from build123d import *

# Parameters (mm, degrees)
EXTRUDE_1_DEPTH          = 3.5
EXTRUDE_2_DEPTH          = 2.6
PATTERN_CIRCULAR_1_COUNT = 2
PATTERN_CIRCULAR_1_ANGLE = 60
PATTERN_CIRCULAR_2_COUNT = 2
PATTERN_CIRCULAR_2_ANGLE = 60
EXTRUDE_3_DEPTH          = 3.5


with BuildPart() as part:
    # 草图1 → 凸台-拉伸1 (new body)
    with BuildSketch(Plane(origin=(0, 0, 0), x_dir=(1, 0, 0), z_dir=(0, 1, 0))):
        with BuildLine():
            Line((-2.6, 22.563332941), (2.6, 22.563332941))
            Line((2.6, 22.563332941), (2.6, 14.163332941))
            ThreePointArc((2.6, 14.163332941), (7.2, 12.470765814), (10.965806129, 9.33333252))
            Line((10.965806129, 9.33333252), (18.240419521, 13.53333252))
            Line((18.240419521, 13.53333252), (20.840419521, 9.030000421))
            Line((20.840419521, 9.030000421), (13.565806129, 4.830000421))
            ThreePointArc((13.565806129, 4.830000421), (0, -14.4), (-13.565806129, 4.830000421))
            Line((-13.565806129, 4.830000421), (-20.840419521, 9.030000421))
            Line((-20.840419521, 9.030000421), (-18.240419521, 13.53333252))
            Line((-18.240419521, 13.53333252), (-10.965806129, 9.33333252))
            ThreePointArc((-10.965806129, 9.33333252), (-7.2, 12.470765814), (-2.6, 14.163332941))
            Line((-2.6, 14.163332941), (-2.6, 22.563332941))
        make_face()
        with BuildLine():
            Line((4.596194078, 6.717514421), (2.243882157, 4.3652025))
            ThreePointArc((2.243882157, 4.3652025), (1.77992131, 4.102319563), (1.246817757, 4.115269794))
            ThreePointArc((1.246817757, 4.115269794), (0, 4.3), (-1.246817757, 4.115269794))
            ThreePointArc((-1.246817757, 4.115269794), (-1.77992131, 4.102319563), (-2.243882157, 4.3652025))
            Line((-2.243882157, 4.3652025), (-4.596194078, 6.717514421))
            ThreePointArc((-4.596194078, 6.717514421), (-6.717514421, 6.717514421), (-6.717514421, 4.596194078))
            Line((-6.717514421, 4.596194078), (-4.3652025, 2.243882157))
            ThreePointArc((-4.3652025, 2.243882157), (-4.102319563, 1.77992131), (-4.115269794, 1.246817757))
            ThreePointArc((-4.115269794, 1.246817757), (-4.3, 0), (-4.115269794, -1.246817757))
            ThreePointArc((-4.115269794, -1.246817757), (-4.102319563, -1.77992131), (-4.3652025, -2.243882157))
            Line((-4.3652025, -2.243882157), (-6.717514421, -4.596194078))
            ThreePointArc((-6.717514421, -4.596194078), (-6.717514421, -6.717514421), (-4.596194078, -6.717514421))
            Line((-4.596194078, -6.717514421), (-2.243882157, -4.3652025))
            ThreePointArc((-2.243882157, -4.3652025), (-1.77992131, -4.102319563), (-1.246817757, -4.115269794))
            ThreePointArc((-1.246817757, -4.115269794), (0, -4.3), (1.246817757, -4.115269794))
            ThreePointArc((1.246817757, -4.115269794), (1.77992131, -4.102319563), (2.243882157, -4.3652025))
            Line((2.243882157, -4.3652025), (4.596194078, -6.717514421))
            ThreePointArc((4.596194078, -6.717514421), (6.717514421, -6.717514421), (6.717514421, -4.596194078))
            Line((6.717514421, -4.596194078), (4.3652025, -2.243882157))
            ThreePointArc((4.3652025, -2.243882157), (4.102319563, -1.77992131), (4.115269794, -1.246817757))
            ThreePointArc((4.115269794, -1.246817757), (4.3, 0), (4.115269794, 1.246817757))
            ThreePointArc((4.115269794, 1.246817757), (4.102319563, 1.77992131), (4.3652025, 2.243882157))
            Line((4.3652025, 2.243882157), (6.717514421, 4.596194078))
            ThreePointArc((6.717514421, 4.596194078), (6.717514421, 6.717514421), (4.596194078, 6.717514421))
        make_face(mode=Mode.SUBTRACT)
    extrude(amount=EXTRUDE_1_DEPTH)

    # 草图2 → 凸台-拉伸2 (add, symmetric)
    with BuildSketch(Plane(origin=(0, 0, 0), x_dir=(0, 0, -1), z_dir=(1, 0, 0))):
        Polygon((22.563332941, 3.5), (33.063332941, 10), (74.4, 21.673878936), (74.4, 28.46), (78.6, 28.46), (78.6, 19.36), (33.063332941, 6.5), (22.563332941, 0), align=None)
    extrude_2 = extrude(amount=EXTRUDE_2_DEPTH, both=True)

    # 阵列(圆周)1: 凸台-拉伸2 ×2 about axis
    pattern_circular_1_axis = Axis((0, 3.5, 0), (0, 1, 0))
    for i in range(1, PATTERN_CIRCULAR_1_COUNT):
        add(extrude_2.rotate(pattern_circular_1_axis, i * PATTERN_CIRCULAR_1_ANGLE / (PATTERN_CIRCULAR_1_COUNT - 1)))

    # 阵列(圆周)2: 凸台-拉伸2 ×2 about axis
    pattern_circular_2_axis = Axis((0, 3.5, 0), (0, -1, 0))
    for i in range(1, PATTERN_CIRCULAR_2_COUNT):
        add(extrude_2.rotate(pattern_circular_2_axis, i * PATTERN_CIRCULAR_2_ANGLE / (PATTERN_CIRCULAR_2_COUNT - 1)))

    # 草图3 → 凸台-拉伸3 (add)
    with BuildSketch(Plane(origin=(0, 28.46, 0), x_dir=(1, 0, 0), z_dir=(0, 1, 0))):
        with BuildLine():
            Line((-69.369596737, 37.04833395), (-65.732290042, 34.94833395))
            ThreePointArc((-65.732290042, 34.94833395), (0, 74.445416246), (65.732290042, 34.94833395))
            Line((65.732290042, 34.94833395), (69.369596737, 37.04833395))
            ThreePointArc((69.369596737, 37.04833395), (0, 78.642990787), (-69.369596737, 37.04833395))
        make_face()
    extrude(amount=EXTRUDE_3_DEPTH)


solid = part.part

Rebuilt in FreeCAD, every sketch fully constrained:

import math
import FreeCAD as App
import Part
import Sketcher
Q = App.Units.Quantity


def add_polygon(sketch, points):
    """Adds a closed chain of lines whose ends are joined by coincident constraints."""
    first, n = sketch.GeometryCount, len(points)
    for a, b in zip(points, points[1:] + points[:1]):
        sketch.addGeometry(Part.LineSegment(App.Vector(*a, 0), App.Vector(*b, 0)), False)
    for i in range(n):
        sketch.addConstraint(Sketcher.Constraint("Coincident", first + i, 2, first + (i + 1) % n, 1))

doc = App.newDocument("Part")
body = doc.addObject("PartDesign::Body", "Body")

# Sketch on XZ plane
sketch1 = body.newObject("Sketcher::SketchObject", "Sketch")
sketch1.AttachmentSupport = (doc.getObject("XZ_Plane"), [""])
sketch1.MapMode = "FlatFace"
sketch1.addGeometry(Part.LineSegment(App.Vector(2.6, -22.6, 0), App.Vector(-2.6, -22.6, 0)), False)
sketch1.addGeometry(Part.LineSegment(App.Vector(-2.6, -22.6, 0), App.Vector(-2.6, -14.2, 0)), False)
sketch1.addGeometry(Part.ArcOfCircle(Part.Circle(App.Vector(0, 0, 0), App.Vector(0, 0, 1), 14.4), math.radians(-140), math.radians(-100)), False)
sketch1.addGeometry(Part.LineSegment(App.Vector(-11, -9.3, 0), App.Vector(-18.2, -13.5, 0)), False)
sketch1.addGeometry(Part.LineSegment(App.Vector(-18.2, -13.5, 0), App.Vector(-20.8, -9, 0)), False)
sketch1.addGeometry(Part.LineSegment(App.Vector(-20.8, -9, 0), App.Vector(-13.6, -4.8, 0)), False)
sketch1.addGeometry(Part.ArcOfCircle(Part.Circle(App.Vector(0, 0, 0), App.Vector(0, 0, 1), 14.4), math.radians(-20), math.radians(200)), False)
sketch1.addGeometry(Part.LineSegment(App.Vector(13.6, -4.8, 0), App.Vector(20.8, -9, 0)), False)
sketch1.addGeometry(Part.LineSegment(App.Vector(20.8, -9, 0), App.Vector(18.2, -13.5, 0)), False)
sketch1.addGeometry(Part.LineSegment(App.Vector(18.2, -13.5, 0), App.Vector(11, -9.3, 0)), False)
sketch1.addGeometry(Part.ArcOfCircle(Part.Circle(App.Vector(0, 0, 0), App.Vector(0, 0, 1), 14.4), math.radians(-80), math.radians(-40)), False)
sketch1.addGeometry(Part.LineSegment(App.Vector(2.6, -14.2, 0), App.Vector(2.6, -22.6, 0)), False)
sketch1.addGeometry(Part.ArcOfCircle(Part.Circle(App.Vector(5.7, -5.7, 0), App.Vector(0, 0, 1), 1.5), math.radians(-135), math.radians(45)), False)
sketch1.addGeometry(Part.LineSegment(App.Vector(6.7, -4.6, 0), App.Vector(4.4, -2.2, 0)), False)
sketch1.addGeometry(Part.ArcOfCircle(Part.Circle(App.Vector(5.1, -1.5, 0), App.Vector(0, 0, 1), 1), math.radians(163), math.radians(225)), False)
sketch1.addGeometry(Part.ArcOfCircle(Part.Circle(App.Vector(0, 0, 0), App.Vector(0, 0, 1), 4.3), math.radians(-17), math.radians(17)), False)
sketch1.addGeometry(Part.ArcOfCircle(Part.Circle(App.Vector(5.1, 1.5, 0), App.Vector(0, 0, 1), 1), math.radians(135), math.radians(197)), False)
sketch1.addGeometry(Part.LineSegment(App.Vector(4.4, 2.2, 0), App.Vector(6.7, 4.6, 0)), False)
sketch1.addGeometry(Part.ArcOfCircle(Part.Circle(App.Vector(5.7, 5.7, 0), App.Vector(0, 0, 1), 1.5), math.radians(-45), math.radians(135)), False)
sketch1.addGeometry(Part.LineSegment(App.Vector(4.6, 6.7, 0), App.Vector(2.2, 4.4, 0)), False)
sketch1.addGeometry(Part.ArcOfCircle(Part.Circle(App.Vector(1.5, 5.1, 0), App.Vector(0, 0, 1), 1), math.radians(-107), math.radians(-45)), False)
sketch1.addGeometry(Part.ArcOfCircle(Part.Circle(App.Vector(0, 0, 0), App.Vector(0, 0, 1), 4.3), math.radians(73), math.radians(107)), False)
sketch1.addGeometry(Part.ArcOfCircle(Part.Circle(App.Vector(-1.5, 5.1, 0), App.Vector(0, 0, 1), 1), math.radians(-135), math.radians(-73)), False)
sketch1.addGeometry(Part.LineSegment(App.Vector(-2.2, 4.4, 0), App.Vector(-4.6, 6.7, 0)), False)
sketch1.addGeometry(Part.ArcOfCircle(Part.Circle(App.Vector(-5.7, 5.7, 0), App.Vector(0, 0, 1), 1.5), math.radians(45), math.radians(225)), False)
sketch1.addGeometry(Part.LineSegment(App.Vector(-6.7, 4.6, 0), App.Vector(-4.4, 2.2, 0)), False)
sketch1.addGeometry(Part.ArcOfCircle(Part.Circle(App.Vector(-5.1, 1.5, 0), App.Vector(0, 0, 1), 1), math.radians(-17), math.radians(45)), False)
sketch1.addGeometry(Part.ArcOfCircle(Part.Circle(App.Vector(0, 0, 0), App.Vector(0, 0, 1), 4.3), math.radians(163), math.radians(197)), False)
sketch1.addGeometry(Part.ArcOfCircle(Part.Circle(App.Vector(-5.1, -1.5, 0), App.Vector(0, 0, 1), 1), math.radians(-45), math.radians(17)), False)
sketch1.addGeometry(Part.LineSegment(App.Vector(-4.4, -2.2, 0), App.Vector(-6.7, -4.6, 0)), False)
sketch1.addGeometry(Part.ArcOfCircle(Part.Circle(App.Vector(-5.7, -5.7, 0), App.Vector(0, 0, 1), 1.5), math.radians(135), math.radians(315)), False)
sketch1.addGeometry(Part.LineSegment(App.Vector(-4.6, -6.7, 0), App.Vector(-2.2, -4.4, 0)), False)
sketch1.addGeometry(Part.ArcOfCircle(Part.Circle(App.Vector(-1.5, -5.1, 0), App.Vector(0, 0, 1), 1), math.radians(73), math.radians(135)), False)
sketch1.addGeometry(Part.ArcOfCircle(Part.Circle(App.Vector(0, 0, 0), App.Vector(0, 0, 1), 4.3), math.radians(-107), math.radians(-73)), False)
sketch1.addGeometry(Part.ArcOfCircle(Part.Circle(App.Vector(1.5, -5.1, 0), App.Vector(0, 0, 1), 1), math.radians(45), math.radians(107)), False)
sketch1.addGeometry(Part.LineSegment(App.Vector(2.2, -4.4, 0), App.Vector(4.6, -6.7, 0)), False)
sketch1.addConstraint(Sketcher.Constraint("Coincident", 0, 2, 1, 1))
sketch1.addConstraint(Sketcher.Constraint("Coincident", 1, 2, 2, 2))
sketch1.addConstraint(Sketcher.Constraint("Coincident", 2, 1, 3, 1))
sketch1.addConstraint(Sketcher.Constraint("Coincident", 3, 2, 4, 1))
sketch1.addConstraint(Sketcher.Constraint("Coincident", 4, 2, 5, 1))
sketch1.addConstraint(Sketcher.Constraint("Coincident", 5, 2, 6, 2))
sketch1.addConstraint(Sketcher.Constraint("Coincident", 6, 1, 7, 1))
sketch1.addConstraint(Sketcher.Constraint("Coincident", 7, 2, 8, 1))
sketch1.addConstraint(Sketcher.Constraint("Coincident", 8, 2, 9, 1))
sketch1.addConstraint(Sketcher.Constraint("Coincident", 9, 2, 10, 2))
sketch1.addConstraint(Sketcher.Constraint("Coincident", 10, 1, 11, 1))
sketch1.addConstraint(Sketcher.Constraint("Coincident", 11, 2, 0, 1))
sketch1.addConstraint(Sketcher.Constraint("Tangent", 12, 2, 13, 1))
sketch1.addConstraint(Sketcher.Constraint("Tangent", 13, 2, 14, 2))
sketch1.addConstraint(Sketcher.Constraint("Tangent", 14, 1, 15, 1))
sketch1.addConstraint(Sketcher.Constraint("Tangent", 15, 2, 16, 2))
sketch1.addConstraint(Sketcher.Constraint("Tangent", 16, 1, 17, 1))
sketch1.addConstraint(Sketcher.Constraint("Tangent", 17, 2, 18, 1))
sketch1.addConstraint(Sketcher.Constraint("Tangent", 18, 2, 19, 1))
sketch1.addConstraint(Sketcher.Constraint("Tangent", 19, 2, 20, 2))
sketch1.addConstraint(Sketcher.Constraint("Tangent", 20, 1, 21, 1))
sketch1.addConstraint(Sketcher.Constraint("Tangent", 21, 2, 22, 2))
sketch1.addConstraint(Sketcher.Constraint("Tangent", 22, 1, 23, 1))
sketch1.addConstraint(Sketcher.Constraint("Tangent", 23, 2, 24, 1))
sketch1.addConstraint(Sketcher.Constraint("Tangent", 24, 2, 25, 1))
sketch1.addConstraint(Sketcher.Constraint("Tangent", 25, 2, 26, 2))
sketch1.addConstraint(Sketcher.Constraint("Tangent", 26, 1, 27, 1))
sketch1.addConstraint(Sketcher.Constraint("Tangent", 27, 2, 28, 2))
sketch1.addConstraint(Sketcher.Constraint("Tangent", 28, 1, 29, 1))
sketch1.addConstraint(Sketcher.Constraint("Tangent", 29, 2, 30, 1))
sketch1.addConstraint(Sketcher.Constraint("Tangent", 30, 2, 31, 1))
sketch1.addConstraint(Sketcher.Constraint("Tangent", 31, 2, 32, 2))
sketch1.addConstraint(Sketcher.Constraint("Tangent", 32, 1, 33, 1))
sketch1.addConstraint(Sketcher.Constraint("Tangent", 33, 2, 34, 2))
sketch1.addConstraint(Sketcher.Constraint("Tangent", 34, 1, 35, 1))
sketch1.addConstraint(Sketcher.Constraint("Tangent", 35, 2, 12, 1))
sketch1.addConstraint(Sketcher.Constraint("Horizontal", 0))
sketch1.addConstraint(Sketcher.Constraint("Vertical", 1))
sketch1.addConstraint(Sketcher.Constraint("Vertical", 11))
sketch1.addConstraint(Sketcher.Constraint("Coincident", 2, 3, -1, 1))
sketch1.addConstraint(Sketcher.Constraint("Coincident", 6, 3, -1, 1))
sketch1.addConstraint(Sketcher.Constraint("Coincident", 10, 3, -1, 1))
sketch1.addConstraint(Sketcher.Constraint("Coincident", 15, 3, -1, 1))
sketch1.addConstraint(Sketcher.Constraint("Coincident", 21, 3, -1, 1))
sketch1.addConstraint(Sketcher.Constraint("Coincident", 27, 3, -1, 1))
sketch1.addConstraint(Sketcher.Constraint("Coincident", 33, 3, -1, 1))
sketch1.addConstraint(Sketcher.Constraint("Equal", 2, 6))
sketch1.addConstraint(Sketcher.Constraint("Equal", 6, 10))
sketch1.addConstraint(Sketcher.Constraint("Equal", 14, 16))
sketch1.addConstraint(Sketcher.Constraint("Equal", 12, 18))
sketch1.addConstraint(Sketcher.Constraint("Equal", 16, 20))
sketch1.addConstraint(Sketcher.Constraint("Equal", 15, 21))
sketch1.addConstraint(Sketcher.Constraint("Equal", 20, 22))
sketch1.addConstraint(Sketcher.Constraint("Equal", 18, 24))
sketch1.addConstraint(Sketcher.Constraint("Equal", 22, 26))
sketch1.addConstraint(Sketcher.Constraint("Equal", 21, 27))
sketch1.addConstraint(Sketcher.Constraint("Equal", 26, 28))
sketch1.addConstraint(Sketcher.Constraint("Equal", 24, 30))
sketch1.addConstraint(Sketcher.Constraint("Equal", 28, 32))
sketch1.addConstraint(Sketcher.Constraint("Equal", 27, 33))
sketch1.addConstraint(Sketcher.Constraint("Equal", 32, 34))
sketch1.addConstraint(Sketcher.Constraint("Symmetric", 12, 3, 24, 3, -1, 1))
sketch1.addConstraint(Sketcher.Constraint("Symmetric", 18, 3, 30, 3, -1, 1))
sketch1.addConstraint(Sketcher.Constraint("Symmetric", 18, 3, 24, 3, -2))
sketch1.addConstraint(Sketcher.Constraint("Symmetric", 4, 2, 7, 2, -2))
sketch1.addConstraint(Sketcher.Constraint("Symmetric", 3, 2, 8, 2, -2))
sketch1.addConstraint(Sketcher.Constraint("Perpendicular", 3, 4))
sketch1.addConstraint(Sketcher.Constraint("Perpendicular", 4, 5))
sketch1.addConstraint(Sketcher.Constraint("Perpendicular", 7, 8))
sketch1.addConstraint(Sketcher.Constraint("Perpendicular", 8, 9))
sketch1.addConstraint(Sketcher.Constraint("Perpendicular", 13, 17))
sketch1.addConstraint(Sketcher.Constraint("Parallel", 17, 19))
sketch1.addConstraint(Sketcher.Constraint("Perpendicular", 19, 23))
sketch1.addConstraint(Sketcher.Constraint("Parallel", 23, 25))
sketch1.addConstraint(Sketcher.Constraint("Perpendicular", 25, 29))
sketch1.addConstraint(Sketcher.Constraint("Parallel", 29, 31))
sketch1.addConstraint(Sketcher.Constraint("Perpendicular", 31, 35))
sketch1.addConstraint(Sketcher.Constraint("Horizontal", 20, 3, 22, 3))
sketch1.addConstraint(Sketcher.Constraint("Horizontal", 1, 2, 10, 1))
sketch1.addConstraint(Sketcher.Constraint("Equal", 3, 5))
sketch1.addConstraint(Sketcher.Constraint("Equal", 17, 19))
sketch1.addConstraint(Sketcher.Constraint("Radius", 14, 1.0))
sketch1.addConstraint(Sketcher.Constraint("Radius", 2, 14.4))
sketch1.addConstraint(Sketcher.Constraint("Radius", 12, 1.5))
sketch1.addConstraint(Sketcher.Constraint("Radius", 15, 4.3))
sketch1.addConstraint(Sketcher.Constraint("Angle", 3, Q("-150 deg")))
sketch1.addConstraint(Sketcher.Constraint("DistanceX", 0, 2, 0, 1, 5.2))
sketch1.addConstraint(Sketcher.Constraint("DistanceY", 1, 1, 1, 2, 8.4))
sketch1.addConstraint(Sketcher.Constraint("Distance", 3, 8.4))
sketch1.addConstraint(Sketcher.Constraint("Distance", 4, 5.2))
sketch1.addConstraint(Sketcher.Constraint("Distance", 13, 3.326671))
pad1 = body.newObject("PartDesign::Pad", "Pad")
pad1.Profile = sketch1
pad1.Length = 3.5
pad1.Reversed = True

# Sketch on YZ plane
sketch2 = body.newObject("Sketcher::SketchObject", "Sketch001")
sketch2.AttachmentSupport = (doc.getObject("YZ_Plane"), [""])
sketch2.MapMode = "FlatFace"
add_polygon(sketch2, [(10, -33.1), (3.5, -22.6), (0, -22.6), (6.5, -33.1), (19.4, -78.6), (28.5, -78.6), (28.5, -74.4), (21.7, -74.4)])  # lines 0-7
sketch2.addConstraint(Sketcher.Constraint("Horizontal", 1))
sketch2.addConstraint(Sketcher.Constraint("Horizontal", 4))
sketch2.addConstraint(Sketcher.Constraint("Vertical", 5))
sketch2.addConstraint(Sketcher.Constraint("Horizontal", 6))
sketch2.addConstraint(Sketcher.Constraint("PointOnObject", 1, 2, -2))
sketch2.addConstraint(Sketcher.Constraint("Parallel", 0, 2))
sketch2.addConstraint(Sketcher.Constraint("Parallel", 3, 7))
sketch2.addConstraint(Sketcher.Constraint("Horizontal", 2, 2, 7, 2))
sketch2.addConstraint(Sketcher.Constraint("DistanceX", 1, 2, 1, 1, 3.5))
sketch2.addConstraint(Sketcher.Constraint("DistanceX", 4, 1, 4, 2, 9.1))
sketch2.addConstraint(Sketcher.Constraint("DistanceY", 5, 1, 5, 2, 4.2))
sketch2.addConstraint(Sketcher.Constraint("DistanceX", -1, 1, 7, 2, 10.0))
sketch2.addConstraint(Sketcher.Constraint("DistanceY", 3, 2, -1, 1, 78.6))
sketch2.addConstraint(Sketcher.Constraint("DistanceY", 2, 2, 0, 2, 10.5))
sketch2.addConstraint(Sketcher.Constraint("DistanceX", -1, 1, 3, 2, 19.36))
sketch2.addConstraint(Sketcher.Constraint("DistanceX", 6, 2, 6, 1, 6.786121))
pad2 = body.newObject("PartDesign::Pad", "Pad001")
pad2.Profile = sketch2
pad2.Length = 5.2
pad2.Midplane = True
doc.recompute()

polarpattern = body.newObject("PartDesign::PolarPattern", "PolarPattern")
polarpattern.Originals = [pad2]
polarpattern.Axis = (doc.getObject("Y_Axis"), [""])
polarpattern.Angle = 60
polarpattern.Occurrences = 2
body.Tip = polarpattern
doc.recompute()

polarpattern2 = body.newObject("PartDesign::PolarPattern", "PolarPattern001")
polarpattern2.Originals = [pad2]
polarpattern2.Axis = (doc.getObject("Y_Axis"), [""])
polarpattern2.Angle = 60
polarpattern2.Occurrences = 2
polarpattern2.Reversed = True
body.Tip = polarpattern2

# Sketch on XZ plane
sketch3 = body.newObject("Sketcher::SketchObject", "Sketch002")
sketch3.AttachmentSupport = (doc.getObject("XZ_Plane"), [""])
sketch3.MapMode = "FlatFace"
sketch3.AttachmentOffset = App.Placement(App.Vector(0, 0, -28.46), App.Rotation())
sketch3.addGeometry(Part.LineSegment(App.Vector(-69.4, -37, 0), App.Vector(-65.7, -34.9, 0)), False)
sketch3.addGeometry(Part.ArcOfCircle(Part.Circle(App.Vector(0, 0, 0), App.Vector(0, 0, 1), 74.4), math.radians(-152), math.radians(-28)), False)
sketch3.addGeometry(Part.LineSegment(App.Vector(65.7, -34.9, 0), App.Vector(69.4, -37, 0)), False)
sketch3.addGeometry(Part.ArcOfCircle(Part.Circle(App.Vector(0, 0, 0), App.Vector(0, 0, 1), 78.6), math.radians(-152), math.radians(-28)), False)
sketch3.addConstraint(Sketcher.Constraint("Coincident", 0, 2, 1, 1))
sketch3.addConstraint(Sketcher.Constraint("Coincident", 1, 2, 2, 1))
sketch3.addConstraint(Sketcher.Constraint("Coincident", 2, 2, 3, 2))
sketch3.addConstraint(Sketcher.Constraint("Coincident", 3, 1, 0, 1))
sketch3.addConstraint(Sketcher.Constraint("Coincident", 1, 3, -1, 1))
sketch3.addConstraint(Sketcher.Constraint("Coincident", 3, 3, -1, 1))
sketch3.addConstraint(Sketcher.Constraint("Horizontal", 0, 2, 1, 2))
sketch3.addConstraint(Sketcher.Constraint("Horizontal", 2, 2, 3, 1))
sketch3.addConstraint(Sketcher.Constraint("Angle", 0, Q("30 deg")))
sketch3.addConstraint(Sketcher.Constraint("Distance", 0, 4.2))
sketch3.addConstraint(Sketcher.Constraint("Radius", 3, 78.642991))
sketch3.addConstraint(Sketcher.Constraint("DistanceX", 0, 2, -1, 1, 65.73229))
pad3 = body.newObject("PartDesign::Pad", "Pad002")
pad3.Profile = sketch3
pad3.Length = 3.5
pad3.Reversed = True

doc.recompute()
